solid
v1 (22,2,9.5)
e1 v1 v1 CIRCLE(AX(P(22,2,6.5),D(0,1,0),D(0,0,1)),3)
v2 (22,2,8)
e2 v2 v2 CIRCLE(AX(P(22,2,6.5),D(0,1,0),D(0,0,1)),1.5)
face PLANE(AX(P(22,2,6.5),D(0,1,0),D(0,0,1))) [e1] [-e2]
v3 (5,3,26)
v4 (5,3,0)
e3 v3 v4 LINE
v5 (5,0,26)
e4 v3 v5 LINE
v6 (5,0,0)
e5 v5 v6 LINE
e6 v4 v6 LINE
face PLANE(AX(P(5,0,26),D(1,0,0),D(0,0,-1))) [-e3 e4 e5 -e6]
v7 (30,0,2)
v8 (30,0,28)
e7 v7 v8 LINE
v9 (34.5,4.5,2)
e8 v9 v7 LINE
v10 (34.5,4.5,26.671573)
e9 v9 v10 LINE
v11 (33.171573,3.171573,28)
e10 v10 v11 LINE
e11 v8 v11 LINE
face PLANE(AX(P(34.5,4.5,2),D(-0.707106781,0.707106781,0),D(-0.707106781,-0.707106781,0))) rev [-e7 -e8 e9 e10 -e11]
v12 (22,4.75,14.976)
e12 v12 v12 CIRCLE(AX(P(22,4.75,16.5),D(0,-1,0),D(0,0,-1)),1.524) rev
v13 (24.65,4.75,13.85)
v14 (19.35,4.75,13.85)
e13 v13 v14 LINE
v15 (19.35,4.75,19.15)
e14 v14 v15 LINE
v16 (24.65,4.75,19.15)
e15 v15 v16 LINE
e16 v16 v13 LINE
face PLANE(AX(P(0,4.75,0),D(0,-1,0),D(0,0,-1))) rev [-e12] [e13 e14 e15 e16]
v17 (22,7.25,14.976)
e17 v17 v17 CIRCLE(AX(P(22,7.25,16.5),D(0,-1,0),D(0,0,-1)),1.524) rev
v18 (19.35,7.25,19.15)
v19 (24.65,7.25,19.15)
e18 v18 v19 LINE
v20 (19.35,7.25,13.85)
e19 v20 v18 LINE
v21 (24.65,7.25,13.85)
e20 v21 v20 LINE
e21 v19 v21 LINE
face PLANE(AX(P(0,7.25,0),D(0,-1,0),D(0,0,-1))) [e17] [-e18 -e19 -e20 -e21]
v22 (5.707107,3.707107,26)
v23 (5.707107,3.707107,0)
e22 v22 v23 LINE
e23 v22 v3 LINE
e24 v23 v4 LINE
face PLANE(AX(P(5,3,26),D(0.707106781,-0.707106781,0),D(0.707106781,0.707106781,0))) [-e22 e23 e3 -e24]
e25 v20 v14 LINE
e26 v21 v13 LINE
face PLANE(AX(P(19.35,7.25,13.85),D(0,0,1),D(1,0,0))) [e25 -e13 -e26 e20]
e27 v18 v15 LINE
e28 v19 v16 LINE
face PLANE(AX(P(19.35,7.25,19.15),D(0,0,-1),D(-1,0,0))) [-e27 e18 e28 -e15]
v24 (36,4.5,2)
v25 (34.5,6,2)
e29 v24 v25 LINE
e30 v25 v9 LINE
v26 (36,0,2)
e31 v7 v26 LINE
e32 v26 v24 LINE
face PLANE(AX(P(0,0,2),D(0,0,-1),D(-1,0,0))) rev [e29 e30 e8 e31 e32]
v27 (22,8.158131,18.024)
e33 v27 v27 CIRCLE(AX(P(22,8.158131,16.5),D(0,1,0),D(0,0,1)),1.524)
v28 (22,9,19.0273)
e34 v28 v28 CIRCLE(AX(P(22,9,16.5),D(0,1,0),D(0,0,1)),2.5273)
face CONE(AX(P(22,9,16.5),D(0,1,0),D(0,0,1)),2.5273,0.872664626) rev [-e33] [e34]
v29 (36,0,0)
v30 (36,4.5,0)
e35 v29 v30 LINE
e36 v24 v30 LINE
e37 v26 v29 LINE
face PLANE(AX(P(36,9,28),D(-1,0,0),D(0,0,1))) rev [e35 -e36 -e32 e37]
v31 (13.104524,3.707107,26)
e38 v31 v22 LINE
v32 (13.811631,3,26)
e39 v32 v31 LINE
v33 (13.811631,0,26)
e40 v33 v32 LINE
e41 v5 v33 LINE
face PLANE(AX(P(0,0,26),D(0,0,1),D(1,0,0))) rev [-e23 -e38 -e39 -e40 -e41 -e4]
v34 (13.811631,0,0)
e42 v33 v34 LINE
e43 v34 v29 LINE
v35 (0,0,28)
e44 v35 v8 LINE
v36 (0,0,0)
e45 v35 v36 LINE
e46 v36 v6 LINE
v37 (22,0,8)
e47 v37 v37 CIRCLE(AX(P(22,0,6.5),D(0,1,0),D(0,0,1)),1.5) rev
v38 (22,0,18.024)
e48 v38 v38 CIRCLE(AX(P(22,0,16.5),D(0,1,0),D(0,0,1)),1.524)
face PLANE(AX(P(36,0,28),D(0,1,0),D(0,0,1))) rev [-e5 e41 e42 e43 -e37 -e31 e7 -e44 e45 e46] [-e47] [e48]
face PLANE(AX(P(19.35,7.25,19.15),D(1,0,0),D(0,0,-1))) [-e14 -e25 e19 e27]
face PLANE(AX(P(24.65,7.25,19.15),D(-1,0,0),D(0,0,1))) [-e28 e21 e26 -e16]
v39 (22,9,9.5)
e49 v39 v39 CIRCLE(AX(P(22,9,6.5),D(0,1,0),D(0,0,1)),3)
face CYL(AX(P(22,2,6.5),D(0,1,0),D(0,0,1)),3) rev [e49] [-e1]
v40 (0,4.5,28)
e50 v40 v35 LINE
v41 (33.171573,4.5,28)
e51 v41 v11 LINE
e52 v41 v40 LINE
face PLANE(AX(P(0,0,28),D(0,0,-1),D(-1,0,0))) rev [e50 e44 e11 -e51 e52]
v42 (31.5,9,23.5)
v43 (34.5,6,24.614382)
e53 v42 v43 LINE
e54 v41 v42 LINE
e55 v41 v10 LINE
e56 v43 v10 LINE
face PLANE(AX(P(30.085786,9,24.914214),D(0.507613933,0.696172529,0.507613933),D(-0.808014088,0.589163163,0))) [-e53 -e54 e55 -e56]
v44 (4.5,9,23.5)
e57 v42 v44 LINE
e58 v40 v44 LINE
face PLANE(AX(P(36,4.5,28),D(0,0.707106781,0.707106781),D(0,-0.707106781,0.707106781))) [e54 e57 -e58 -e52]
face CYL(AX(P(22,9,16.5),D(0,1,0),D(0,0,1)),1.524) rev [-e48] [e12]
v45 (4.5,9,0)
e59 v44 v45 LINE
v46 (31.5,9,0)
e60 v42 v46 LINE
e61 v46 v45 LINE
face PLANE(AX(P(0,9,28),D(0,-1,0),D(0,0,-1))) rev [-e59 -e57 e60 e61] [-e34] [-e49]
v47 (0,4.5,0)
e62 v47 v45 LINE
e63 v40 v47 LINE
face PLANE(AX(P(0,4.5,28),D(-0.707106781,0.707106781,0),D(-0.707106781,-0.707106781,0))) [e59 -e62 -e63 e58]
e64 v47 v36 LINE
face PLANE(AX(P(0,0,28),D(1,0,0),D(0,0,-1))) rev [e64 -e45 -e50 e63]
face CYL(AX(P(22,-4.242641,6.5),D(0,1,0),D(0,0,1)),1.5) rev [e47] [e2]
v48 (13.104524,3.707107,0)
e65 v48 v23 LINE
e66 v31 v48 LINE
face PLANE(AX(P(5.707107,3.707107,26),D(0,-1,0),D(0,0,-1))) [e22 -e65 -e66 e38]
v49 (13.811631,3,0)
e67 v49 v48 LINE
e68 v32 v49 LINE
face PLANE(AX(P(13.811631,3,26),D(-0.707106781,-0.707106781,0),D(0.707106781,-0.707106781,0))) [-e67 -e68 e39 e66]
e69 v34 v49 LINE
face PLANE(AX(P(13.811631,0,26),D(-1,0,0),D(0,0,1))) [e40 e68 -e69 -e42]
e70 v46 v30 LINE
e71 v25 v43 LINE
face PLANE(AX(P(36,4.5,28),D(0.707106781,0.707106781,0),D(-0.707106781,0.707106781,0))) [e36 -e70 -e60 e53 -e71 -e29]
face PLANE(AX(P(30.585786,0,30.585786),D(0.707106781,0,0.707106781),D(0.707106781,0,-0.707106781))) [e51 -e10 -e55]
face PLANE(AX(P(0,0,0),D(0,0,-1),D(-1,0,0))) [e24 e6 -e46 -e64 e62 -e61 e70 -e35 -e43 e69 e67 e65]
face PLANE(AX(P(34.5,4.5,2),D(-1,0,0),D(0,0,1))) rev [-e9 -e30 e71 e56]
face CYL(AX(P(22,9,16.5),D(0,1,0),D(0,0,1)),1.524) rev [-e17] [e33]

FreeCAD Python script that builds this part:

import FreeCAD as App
import Part
import Sketcher

V = App.Vector
Q = App.Units.Quantity


def add_polygon(sketch, points):
    """Adds a closed chain of lines whose ends are joined by coincident constraints."""
    first, n = sketch.GeometryCount, len(points)
    for a, b in zip(points, points[1:] + points[:1]):
        sketch.addGeometry(Part.LineSegment(App.Vector(*a, 0), App.Vector(*b, 0)), False)
    for i in range(n):
        sketch.addConstraint(Sketcher.Constraint("Coincident", first + i, 2, first + (i + 1) % n, 1))

doc = App.newDocument("Part")
params = doc.addObject("Spreadsheet::Sheet", "Params")
for row, (alias, value) in enumerate([
    ("sketch1_width", "36 mm"),
    ("sketch1_height", "9 mm"),
    ("pad1_length", "28 mm"),
    ("sketch2_width", "4.5 mm"),
    ("pocket1_length", "28 mm"),
    ("sketch3_width", "4.5 mm"),
    ("pocket2_length", "36 mm"),
    ("pocket3_length", "2 mm"),
    ("sketch6_height", "3 mm"),
    ("sketch6_length", "1 mm"),
    ("pocket5_length", "26 mm"),
    ("sketch7_width", "6 mm"),
    ("sketch7_width2", "1.5 mm"),
    ("pocket6_length", "26 mm"),
    ("sketch8_diameter", "6 mm"),
    ("pocket7_length", "7 mm"),
    ("sketch9_diameter", "3 mm"),
    ("pocket8_length", "2 mm"),
    ("sketch10_diameter", "3 mm"),
    ("pocket9_length", "9 mm"),
    ("hole_diameter", "3.048 mm"),
    ("hole_depth", "9 mm"),
    ("hole_csink_diameter", "5.0546 mm"),
    ("sketch12_width", "5.3 mm"),
    ("pocket10_length", "2.5 mm"),
], start=1):
    params.set(f"A{row}", alias)
    params.set(f"B{row}", "=" + value)
    params.setAlias(f"B{row}", alias)

body = doc.addObject("PartDesign::Body", "Body")

# Sketch on XY plane
sketch1 = body.newObject("Sketcher::SketchObject", "Sketch")
sketch1.AttachmentSupport = (doc.getObject("XY_Plane"), [""])
sketch1.MapMode = "FlatFace"
add_polygon(sketch1, [(0, 9), (0, 0), (36, 0), (36, 9)])  # lines 0-3
sketch1.addConstraint([
    Sketcher.Constraint("Vertical", 0),
    Sketcher.Constraint("Horizontal", 1),
    Sketcher.Constraint("Vertical", 2),
    Sketcher.Constraint("Horizontal", 3),
    Sketcher.Constraint("Coincident", 0, 2, -1, 1),
    Sketcher.Constraint("DistanceX", 1, 1, 1, 2, Q("36 mm")),
    Sketcher.Constraint("DistanceY", 0, 2, 0, 1, Q("9 mm")),
])
sketch1.setExpression("Constraints[9]", "Params.sketch1_width")
sketch1.setExpression("Constraints[10]", "Params.sketch1_height")
pad1 = body.newObject("PartDesign::Pad", "Pad")
pad1.Profile = sketch1
pad1.setExpression("Length", "Params.pad1_length")

# Sketch on XY plane
sketch2 = body.newObject("Sketcher::SketchObject", "Sketch001")
sketch2.AttachmentSupport = (doc.getObject("XY_Plane"), [""])
sketch2.MapMode = "FlatFace"
add_polygon(sketch2, [(0, 4.5), (4.5, 9), (0, 9)])  # lines 0-2
add_polygon(sketch2, [(31.5, 9), (36, 4.5), (36, 9)])  # lines 3-5
sketch2.addConstraint([
    Sketcher.Constraint("Horizontal", 1),
    Sketcher.Constraint("Vertical", 2),
    Sketcher.Constraint("Vertical", 4),
    Sketcher.Constraint("Horizontal", 5),
    Sketcher.Constraint("PointOnObject", 1, 2, -2),
    Sketcher.Constraint("Perpendicular", 0, 3),
    Sketcher.Constraint("Horizontal", 2, 2, 3, 2),
    Sketcher.Constraint("Horizontal", 1, 2, 4, 2),
    Sketcher.Constraint("Equal", 1, 5),
    Sketcher.Constraint("DistanceX", 1, 2, 1, 1, Q("4.5 mm")),
    Sketcher.Constraint("DistanceY", -1, 1, 0, 2, Q("9 mm")),
    Sketcher.Constraint("DistanceX", -1, 1, 3, 2, Q("36 mm")),
])
sketch2.setExpression("Constraints[15]", "Params.sketch2_width")
pocket1 = body.newObject("PartDesign::Pocket", "Pocket")
pocket1.Profile = sketch2
pocket1.setExpression("Length", "Params.pocket1_length")
pocket1.Reversed = True

# Sketch on YZ plane
sketch3 = body.newObject("Sketcher::SketchObject", "Sketch002")
sketch3.AttachmentSupport = (doc.getObject("YZ_Plane"), [""])
sketch3.MapMode = "FlatFace"
add_polygon(sketch3, [(4.5, 28), (9, 23.5), (9, 28)])  # lines 0-2
sketch3.addConstraint([
    Sketcher.Constraint("Vertical", 1),
    Sketcher.Constraint("Horizontal", 2),
    Sketcher.Constraint("Equal", 2, 1),
    Sketcher.Constraint("DistanceX", 2, 2, 2, 1, Q("4.5 mm")),
    Sketcher.Constraint("DistanceX", -1, 1, 0, 2, Q("9 mm")),
    Sketcher.Constraint("DistanceY", -1, 1, 1, 2, Q("28 mm")),
])
sketch3.setExpression("Constraints[6]", "Params.sketch3_width")
pocket2 = body.newObject("PartDesign::Pocket", "Pocket001")
pocket2.Profile = sketch3
pocket2.setExpression("Length", "Params.pocket2_length")
pocket2.Reversed = True

# Sketch on an angled plane
sketch4 = body.newObject("Sketcher::SketchObject", "Sketch003")
sketch4.Placement = App.Placement(V(32, 0, 32), App.Rotation(V(0, 1, 0), V(-0.707106781, 0, 0.707106781), V(0.707106781, 0, 0.707106781), "ZXY"))
add_polygon(sketch4, [(0, 2), (0, -14), (11, -14), (11, 2)])  # lines 0-3
sketch4.addConstraint([
    Sketcher.Constraint("Vertical", 0),
    Sketcher.Constraint("Horizontal", 1),
    Sketcher.Constraint("Vertical", 2),
    Sketcher.Constraint("Horizontal", 3),
    Sketcher.Constraint("PointOnObject", 0, 2, -2),
    Sketcher.Constraint("DistanceX", 1, 1, 1, 2, Q("11.440377 mm")),
    Sketcher.Constraint("DistanceY", 0, 2, 0, 1, Q("15.618965 mm")),
    Sketcher.Constraint("DistanceY", 0, 2, -1, 1, Q("13.745179 mm")),
])
pocket3 = body.newObject("PartDesign::Pocket", "Pocket002")
pocket3.Profile = sketch4
pocket3.setExpression("Length", "Params.pocket3_length")

# Sketch on an angled plane
sketch5 = body.newObject("Sketcher::SketchObject", "Sketch004")
sketch5.Placement = App.Placement(V(4, 0, -4), App.Rotation(V(0.577350269, -0.577350269, 0.577350269), V(0.40824829, 0.81649658, 0.40824829), V(-0.707106781, 0, 0.707106781), "ZXY"))
add_polygon(sketch5, [(26.6, 29.8), (32.7, 28.6), (30.2, 32.2)])  # lines 0-2
sketch5.addConstraint([
    Sketcher.Constraint("Equal", 1, 2),
    Sketcher.Constraint("DistanceY", 0, 2, 2, 2, Q("1.154701 mm")),
    Sketcher.Constraint("DistanceX", 1, 2, 0, 2, Q("2.520721 mm")),
    Sketcher.Constraint("DistanceY", 0, 2, 1, 2, Q("3.564838 mm")),
    Sketcher.Constraint("DistanceX", -1, 1, 0, 2, Q("32.719348 mm")),
    Sketcher.Constraint("DistanceY", -1, 1, 0, 2, Q("28.647425 mm")),
])
pocket4 = body.newObject("PartDesign::Pocket", "Pocket003")
pocket4.Profile = sketch5
pocket4.Type = "ThroughAll"
pocket4.Midplane = True

# Sketch on XY plane
sketch6 = body.newObject("Sketcher::SketchObject", "Sketch005")
sketch6.AttachmentSupport = (doc.getObject("XY_Plane"), [""])
sketch6.MapMode = "FlatFace"
add_polygon(sketch6, [(5, 3), (5, 0), (13.8, 0), (13.8, 3), (13.1, 3.7), (5.7, 3.7)])  # lines 0-5
sketch6.addConstraint([
    Sketcher.Constraint("Vertical", 0),
    Sketcher.Constraint("Horizontal", 1),
    Sketcher.Constraint("Vertical", 2),
    Sketcher.Constraint("Horizontal", 4),
    Sketcher.Constraint("PointOnObject", 0, 2, -1),
    Sketcher.Constraint("Perpendicular", 3, 5),
    Sketcher.Constraint("Horizontal", 2, 2, 5, 2),
    Sketcher.Constraint("Equal", 3, 5),
    Sketcher.Constraint("DistanceY", 0, 2, 0, 1, Q("3 mm")),
    Sketcher.Constraint("Distance", 3, Q("1 mm")),
    Sketcher.Constraint("DistanceX", -1, 1, 0, 2, Q("5 mm")),
    Sketcher.Constraint("DistanceX", 1, 1, 1, 2, Q("8.811631 mm")),
])
sketch6.setExpression("Constraints[14]", "Params.sketch6_height")
sketch6.setExpression("Constraints[15]", "Params.sketch6_length")
pocket5 = body.newObject("PartDesign::Pocket", "Pocket004")
pocket5.Profile = sketch6
pocket5.setExpression("Length", "Params.pocket5_length")
pocket5.Reversed = True

# Sketch on XY plane
sketch7 = body.newObject("Sketcher::SketchObject", "Sketch006")
sketch7.AttachmentSupport = (doc.getObject("XY_Plane"), [""])
sketch7.MapMode = "FlatFace"
sketch7.AttachmentOffset = App.Placement(V(0, 0, 28), App.Rotation())
add_polygon(sketch7, [(30, 0), (36, 0), (36, 6), (34.5, 6), (34.5, 4.5)])  # lines 0-4
sketch7.addConstraint([
    Sketcher.Constraint("Horizontal", 0),
    Sketcher.Constraint("Vertical", 1),
    Sketcher.Constraint("Horizontal", 2),
    Sketcher.Constraint("Vertical", 3),
    Sketcher.Constraint("PointOnObject", 0, 2, -1),
    Sketcher.Constraint("Equal", 0, 1),
    Sketcher.Constraint("Equal", 2, 3),
    Sketcher.Constraint("DistanceX", 0, 1, 0, 2, Q("6 mm")),
    Sketcher.Constraint("DistanceX", 2, 2, 2, 1, Q("1.5 mm")),
    Sketcher.Constraint("DistanceX", -1, 1, 0, 2, Q("36 mm")),
])
sketch7.setExpression("Constraints[12]", "Params.sketch7_width")
sketch7.setExpression("Constraints[13]", "Params.sketch7_width2")
pocket6 = body.newObject("PartDesign::Pocket", "Pocket005")
pocket6.Profile = sketch7
pocket6.setExpression("Length", "Params.pocket6_length")

# Sketch on XZ plane
sketch8 = body.newObject("Sketcher::SketchObject", "Sketch007")
sketch8.AttachmentSupport = (doc.getObject("XZ_Plane"), [""])
sketch8.MapMode = "FlatFace"
sketch8.AttachmentOffset = App.Placement(V(0, 0, -9), App.Rotation())
sketch8.addGeometry(Part.Circle(V(22, 6.5, 0), V(0, 0, 1), 3), False)
sketch8.addConstraint([
    Sketcher.Constraint("Diameter", 0, Q("6 mm")),
    Sketcher.Constraint("DistanceX", -1, 1, 0, 3, Q("22 mm")),
    Sketcher.Constraint("DistanceY", -1, 1, 0, 3, Q("6.5 mm")),
])
sketch8.setExpression("Constraints[0]", "Params.sketch8_diameter")
pocket7 = body.newObject("PartDesign::Pocket", "Pocket006")
pocket7.Profile = sketch8
pocket7.setExpression("Length", "Params.pocket7_length")
pocket7.Reversed = True

# Sketch on XZ plane
sketch9 = body.newObject("Sketcher::SketchObject", "Sketch008")
sketch9.AttachmentSupport = (doc.getObject("XZ_Plane"), [""])
sketch9.MapMode = "FlatFace"
sketch9.AttachmentOffset = App.Placement(V(0, 0, -2), App.Rotation())
sketch9.addGeometry(Part.Circle(V(22, 6.5, 0), V(0, 0, 1), 1.5), False)
sketch9.addConstraint([
    Sketcher.Constraint("Diameter", 0, Q("3 mm")),
    Sketcher.Constraint("DistanceX", -1, 1, 0, 3, Q("22 mm")),
    Sketcher.Constraint("DistanceY", -1, 1, 0, 3, Q("6.5 mm")),
])
sketch9.setExpression("Constraints[0]", "Params.sketch9_diameter")
pocket8 = body.newObject("PartDesign::Pocket", "Pocket007")
pocket8.Profile = sketch9
pocket8.setExpression("Length", "Params.pocket8_length")
pocket8.Reversed = True

# Sketch on XZ plane
sketch10 = body.newObject("Sketcher::SketchObject", "Sketch009")
sketch10.AttachmentSupport = (doc.getObject("XZ_Plane"), [""])
sketch10.MapMode = "FlatFace"
sketch10.addGeometry(Part.Circle(V(22, 16.5, 0), V(0, 0, 1), 1.5), False)
sketch10.addConstraint([
    Sketcher.Constraint("Diameter", 0, Q("3 mm")),
    Sketcher.Constraint("DistanceX", -1, 1, 0, 3, Q("22 mm")),
    Sketcher.Constraint("DistanceY", -1, 1, 0, 3, Q("16.5 mm")),
])
sketch10.setExpression("Constraints[0]", "Params.sketch10_diameter")
pocket9 = body.newObject("PartDesign::Pocket", "Pocket008")
pocket9.Profile = sketch10
pocket9.setExpression("Length", "Params.pocket9_length")

# Sketch on XZ plane
sketch11 = body.newObject("Sketcher::SketchObject", "Sketch010")
sketch11.AttachmentSupport = (doc.getObject("XZ_Plane"), [""])
sketch11.MapMode = "FlatFace"
sketch11.AttachmentOffset = App.Placement(V(0, 0, -9), App.Rotation())
sketch11.addGeometry(Part.Circle(V(22, 16.5, 0), V(0, 0, 1), 1.5), False)
sketch11.addConstraint([
    Sketcher.Constraint("Diameter", 0, Q("3.048 mm")),
    Sketcher.Constraint("DistanceX", -1, 1, 0, 3, Q("22 mm")),
    Sketcher.Constraint("DistanceY", -1, 1, 0, 3, Q("16.5 mm")),
])
doc.recompute()
hole = body.newObject("PartDesign::Hole", "Hole")
hole.Profile = sketch11
hole.ThreadType = "None"
hole.setExpression("Diameter", "Params.hole_diameter")
hole.DepthType = "Dimension"
hole.setExpression("Depth", "Params.hole_depth")
hole.DrillPoint = "Flat"
hole.HoleCutType = "Countersink"
hole.setExpression("HoleCutDiameter", "Params.hole_csink_diameter")
hole.HoleCutCountersinkAngle = 100
hole.Reversed = True

# Sketch on XZ plane
sketch12 = body.newObject("Sketcher::SketchObject", "Sketch011")
sketch12.AttachmentSupport = (doc.getObject("XZ_Plane"), [""])
sketch12.MapMode = "FlatFace"
sketch12.AttachmentOffset = App.Placement(V(0, 0, -4.75), App.Rotation())
add_polygon(sketch12, [(19, 14), (19, 19), (25, 19), (25, 14)])  # lines 0-3
sketch12.addConstraint([
    Sketcher.Constraint("Vertical", 0),
    Sketcher.Constraint("Horizontal", 1),
    Sketcher.Constraint("Vertical", 2),
    Sketcher.Constraint("Horizontal", 3),
    Sketcher.Constraint("Equal", 3, 0),
    Sketcher.Constraint("DistanceX", 1, 1, 1, 2, Q("5.3 mm")),
    Sketcher.Constraint("DistanceX", -1, 1, 0, 2, Q("19.35 mm")),
    Sketcher.Constraint("DistanceY", -1, 1, 0, 2, Q("19.15 mm")),
])
sketch12.setExpression("Constraints[9]", "Params.sketch12_width")
pocket10 = body.newObject("PartDesign::Pocket", "Pocket009")
pocket10.Profile = sketch12
pocket10.setExpression("Length", "Params.pocket10_length")

doc.recompute()
